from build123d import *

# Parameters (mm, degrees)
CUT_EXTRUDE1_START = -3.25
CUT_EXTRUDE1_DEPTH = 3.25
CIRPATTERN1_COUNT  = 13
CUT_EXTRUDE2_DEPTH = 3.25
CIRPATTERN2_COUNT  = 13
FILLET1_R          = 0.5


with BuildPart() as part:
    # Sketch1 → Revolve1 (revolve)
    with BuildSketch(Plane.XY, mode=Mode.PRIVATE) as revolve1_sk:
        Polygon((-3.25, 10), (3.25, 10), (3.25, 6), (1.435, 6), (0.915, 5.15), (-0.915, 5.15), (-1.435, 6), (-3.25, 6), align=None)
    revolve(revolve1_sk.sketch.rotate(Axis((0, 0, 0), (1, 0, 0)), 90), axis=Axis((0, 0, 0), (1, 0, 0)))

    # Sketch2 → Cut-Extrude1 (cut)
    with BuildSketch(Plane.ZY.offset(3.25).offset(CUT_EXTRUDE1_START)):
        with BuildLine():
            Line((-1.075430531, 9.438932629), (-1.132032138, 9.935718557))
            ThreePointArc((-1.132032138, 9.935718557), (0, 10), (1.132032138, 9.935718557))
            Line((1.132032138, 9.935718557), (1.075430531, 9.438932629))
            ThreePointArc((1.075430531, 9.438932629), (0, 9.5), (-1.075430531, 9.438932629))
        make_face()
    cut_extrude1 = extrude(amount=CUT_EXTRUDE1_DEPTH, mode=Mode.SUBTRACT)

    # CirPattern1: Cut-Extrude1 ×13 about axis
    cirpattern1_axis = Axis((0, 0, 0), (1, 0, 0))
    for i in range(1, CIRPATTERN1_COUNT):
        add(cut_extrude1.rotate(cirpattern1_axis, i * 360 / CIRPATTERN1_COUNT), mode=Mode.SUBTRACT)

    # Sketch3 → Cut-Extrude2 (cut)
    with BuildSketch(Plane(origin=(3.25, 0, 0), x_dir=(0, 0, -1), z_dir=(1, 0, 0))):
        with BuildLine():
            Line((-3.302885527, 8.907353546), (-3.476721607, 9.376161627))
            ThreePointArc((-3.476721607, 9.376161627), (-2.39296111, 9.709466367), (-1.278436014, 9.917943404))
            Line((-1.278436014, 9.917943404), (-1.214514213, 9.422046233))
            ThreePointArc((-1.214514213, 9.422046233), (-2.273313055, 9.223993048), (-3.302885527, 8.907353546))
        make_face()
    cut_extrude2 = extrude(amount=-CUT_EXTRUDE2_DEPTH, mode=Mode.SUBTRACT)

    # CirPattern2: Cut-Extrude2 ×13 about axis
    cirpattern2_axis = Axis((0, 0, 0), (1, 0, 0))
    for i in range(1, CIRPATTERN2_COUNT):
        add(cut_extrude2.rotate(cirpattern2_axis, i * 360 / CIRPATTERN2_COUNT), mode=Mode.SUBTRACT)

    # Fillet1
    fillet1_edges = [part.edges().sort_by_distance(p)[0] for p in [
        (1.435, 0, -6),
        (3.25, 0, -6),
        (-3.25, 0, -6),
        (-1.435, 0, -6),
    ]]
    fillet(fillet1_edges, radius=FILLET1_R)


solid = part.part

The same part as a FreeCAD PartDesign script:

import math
import FreeCAD as App
import Part
import Sketcher

V = App.Vector
Q = App.Units.Quantity


def edges_at(feature, points):
    """Names of the edges that pass closest to the given points."""
    edges = feature.Shape.Edges
    near = lambda p: min(range(len(edges)), key=lambda i: edges[i].distToShape(Part.Vertex(*p))[0])
    return sorted({f"Edge{near(p) + 1}" for p in points})

doc = App.newDocument("Part")
body = doc.addObject("PartDesign::Body", "Body")

sketch1 = body.newObject("Sketcher::SketchObject", "Sketch")
sketch1.AttachmentSupport = (doc.getObject("XY_Plane"), [""])
sketch1.MapMode = "FlatFace"
sketch1.addGeometry(Part.LineSegment(V(3.2, 10, 0), V(-3.2, 10, 0)), False)
sketch1.addGeometry(Part.LineSegment(V(-3.2, 10, 0), V(-3.2, 6, 0)), False)
sketch1.addGeometry(Part.LineSegment(V(-3.2, 6, 0), V(-1.4, 6, 0)), False)
sketch1.addGeometry(Part.LineSegment(V(-1.4, 6, 0), V(-0.9, 5.2, 0)), False)
sketch1.addGeometry(Part.LineSegment(V(-0.9, 5.2, 0), V(0.9, 5.2, 0)), False)
sketch1.addGeometry(Part.LineSegment(V(0.9, 5.2, 0), V(1.4, 6, 0)), False)
sketch1.addGeometry(Part.LineSegment(V(1.4, 6, 0), V(3.2, 6, 0)), False)
sketch1.addGeometry(Part.LineSegment(V(3.2, 6, 0), V(3.2, 10, 0)), False)
sketch1.addConstraint(Sketcher.Constraint("Coincident", 0, 2, 1, 1))
sketch1.addConstraint(Sketcher.Constraint("Coincident", 1, 2, 2, 1))
sketch1.addConstraint(Sketcher.Constraint("Coincident", 2, 2, 3, 1))
sketch1.addConstraint(Sketcher.Constraint("Coincident", 3, 2, 4, 1))
sketch1.addConstraint(Sketcher.Constraint("Coincident", 4, 2, 5, 1))
sketch1.addConstraint(Sketcher.Constraint("Coincident", 5, 2, 6, 1))
sketch1.addConstraint(Sketcher.Constraint("Coincident", 6, 2, 7, 1))
sketch1.addConstraint(Sketcher.Constraint("Coincident", 7, 2, 0, 1))
sketch1.addConstraint(Sketcher.Constraint("Horizontal", 0))
sketch1.addConstraint(Sketcher.Constraint("Vertical", 1))
sketch1.addConstraint(Sketcher.Constraint("Horizontal", 2))
sketch1.addConstraint(Sketcher.Constraint("Horizontal", 4))
sketch1.addConstraint(Sketcher.Constraint("Horizontal", 6))
sketch1.addConstraint(Sketcher.Constraint("Vertical", 7))
sketch1.addConstraint(Sketcher.Constraint("Symmetric", 2, 2, 5, 2, -2))
sketch1.addConstraint(Sketcher.Constraint("Equal", 2, 6))
sketch1.addConstraint(Sketcher.Constraint("Equal", 3, 5))
sketch1.addConstraint(Sketcher.Constraint("DistanceY", 1, 2, 1, 1, Q("4 mm")))
sketch1.addConstraint(Sketcher.Constraint("DistanceX", 0, 2, 0, 1, Q("6.5 mm")))
sketch1.addConstraint(Sketcher.Constraint("DistanceY", -1, 1, 0, 2, Q("10 mm")))
sketch1.addConstraint(Sketcher.Constraint("DistanceX", 4, 1, 4, 2, Q("1.83 mm")))
sketch1.addConstraint(Sketcher.Constraint("DistanceX", 2, 1, 2, 2, Q("1.815 mm")))
sketch1.addConstraint(Sketcher.Constraint("DistanceY", -1, 1, 3, 2, Q("5.15 mm")))
revolution = body.newObject("PartDesign::Revolution", "Revolution")
revolution.Profile = sketch1
revolution.ReferenceAxis = (sketch1, ["H_Axis"])
revolution.Angle = 360

sketch2 = body.newObject("Sketcher::SketchObject", "Sketch001")
sketch2.AttachmentSupport = (doc.getObject("YZ_Plane"), [""])
sketch2.MapMode = "FlatFace"
sketch2.addGeometry(Part.LineSegment(V(9.9, -1.1, 0), V(9.4, -1.1, 0)), False)
sketch2.addGeometry(Part.ArcOfCircle(Part.Circle(V(0, 0, 0), V(0, 0, 1), 9.5), math.radians(-6.5), math.radians(6.5)), False)
sketch2.addGeometry(Part.LineSegment(V(9.4, 1.1, 0), V(9.9, 1.1, 0)), False)
sketch2.addGeometry(Part.ArcOfCircle(Part.Circle(V(0, 0, 0), V(0, 0, 1), 10), math.radians(-6.5), math.radians(6.5)), False)
sketch2.addConstraint(Sketcher.Constraint("Coincident", 0, 2, 1, 1))
sketch2.addConstraint(Sketcher.Constraint("Coincident", 1, 2, 2, 1))
sketch2.addConstraint(Sketcher.Constraint("Coincident", 2, 2, 3, 2))
sketch2.addConstraint(Sketcher.Constraint("Coincident", 3, 1, 0, 1))
sketch2.addConstraint(Sketcher.Constraint("Coincident", 1, 3, -1, 1))
sketch2.addConstraint(Sketcher.Constraint("Coincident", 3, 3, -1, 1))
sketch2.addConstraint(Sketcher.Constraint("Vertical", 0, 2, 1, 2))
sketch2.addConstraint(Sketcher.Constraint("Vertical", 2, 2, 3, 1))
sketch2.addConstraint(Sketcher.Constraint("Radius", 3, Q("10 mm")))
sketch2.addConstraint(Sketcher.Constraint("Radius", 1, Q("9.5 mm")))
sketch2.addConstraint(Sketcher.Constraint("Angle", 0, Q("173.5 deg")))
sketch2.addConstraint(Sketcher.Constraint("DistanceY", 0, 2, -1, 1, Q("1.075431 mm")))
pocket1 = body.newObject("PartDesign::Pocket", "Pocket")
pocket1.Profile = sketch2
pocket1.Length = 3.25
doc.recompute()

polarpattern = body.newObject("PartDesign::PolarPattern", "PolarPattern")
polarpattern.Originals = [pocket1]
polarpattern.Axis = (doc.getObject("X_Axis"), [""])
polarpattern.Angle = 360
polarpattern.Occurrences = 13
body.Tip = polarpattern

sketch3 = body.newObject("Sketcher::SketchObject", "Sketch002")
sketch3.AttachmentSupport = (doc.getObject("YZ_Plane"), [""])
sketch3.MapMode = "FlatFace"
sketch3.AttachmentOffset = App.Placement(V(0, 0, 3.25), App.Rotation())
sketch3.addGeometry(Part.LineSegment(V(9.38, 3.48, 0), V(8.91, 3.3, 0)), False)
sketch3.addGeometry(Part.ArcOfCircle(Part.Circle(V(0, 0, 0), V(0, 0, 1), 9.5), math.radians(7.34), math.radians(20.34)), False)
sketch3.addGeometry(Part.LineSegment(V(9.42, 1.21, 0), V(9.92, 1.28, 0)), False)
sketch3.addGeometry(Part.ArcOfCircle(Part.Circle(V(0, 0, 0), V(0, 0, 1), 10), math.radians(7.34), math.radians(20.35)), False)
sketch3.addConstraint(Sketcher.Constraint("Coincident", 0, 2, 1, 2))
sketch3.addConstraint(Sketcher.Constraint("Coincident", 1, 1, 2, 1))
sketch3.addConstraint(Sketcher.Constraint("Coincident", 2, 2, 3, 1))
sketch3.addConstraint(Sketcher.Constraint("Coincident", 3, 2, 0, 1))
sketch3.addConstraint(Sketcher.Constraint("Coincident", 1, 3, -1, 1))
sketch3.addConstraint(Sketcher.Constraint("Coincident", 3, 3, -1, 1))
sketch3.addConstraint(Sketcher.Constraint("Radius", 3, Q("10 mm")))
sketch3.addConstraint(Sketcher.Constraint("Radius", 1, Q("9.5 mm")))
sketch3.addConstraint(Sketcher.Constraint("DistanceX", -1, 1, 3, 2, Q("9.376162 mm")))
sketch3.addConstraint(Sketcher.Constraint("DistanceY", 1, 1, 0, 2, Q("2.088371 mm")))
sketch3.addConstraint(Sketcher.Constraint("DistanceY", 1, 1, 2, 2, Q("0.063922 mm")))
sketch3.addConstraint(Sketcher.Constraint("DistanceX", 0, 2, 2, 2, Q("1.01059 mm")))
pocket2 = body.newObject("PartDesign::Pocket", "Pocket001")
pocket2.Profile = sketch3
pocket2.Length = 3.25
doc.recompute()

polarpattern2 = body.newObject("PartDesign::PolarPattern", "PolarPattern001")
polarpattern2.Originals = [pocket2]
polarpattern2.Axis = (doc.getObject("X_Axis"), [""])
polarpattern2.Angle = 360
polarpattern2.Occurrences = 13
body.Tip = polarpattern2
doc.recompute()

fillet = body.newObject("PartDesign::Fillet", "Fillet")
fillet.Base = (polarpattern2, edges_at(polarpattern2, [
    (1.435, 0, -6),
    (3.25, 0, -6),
    (-3.25, 0, -6),
    (-1.435, 0, -6),
]))
fillet.Radius = 0.5

doc.recompute()
